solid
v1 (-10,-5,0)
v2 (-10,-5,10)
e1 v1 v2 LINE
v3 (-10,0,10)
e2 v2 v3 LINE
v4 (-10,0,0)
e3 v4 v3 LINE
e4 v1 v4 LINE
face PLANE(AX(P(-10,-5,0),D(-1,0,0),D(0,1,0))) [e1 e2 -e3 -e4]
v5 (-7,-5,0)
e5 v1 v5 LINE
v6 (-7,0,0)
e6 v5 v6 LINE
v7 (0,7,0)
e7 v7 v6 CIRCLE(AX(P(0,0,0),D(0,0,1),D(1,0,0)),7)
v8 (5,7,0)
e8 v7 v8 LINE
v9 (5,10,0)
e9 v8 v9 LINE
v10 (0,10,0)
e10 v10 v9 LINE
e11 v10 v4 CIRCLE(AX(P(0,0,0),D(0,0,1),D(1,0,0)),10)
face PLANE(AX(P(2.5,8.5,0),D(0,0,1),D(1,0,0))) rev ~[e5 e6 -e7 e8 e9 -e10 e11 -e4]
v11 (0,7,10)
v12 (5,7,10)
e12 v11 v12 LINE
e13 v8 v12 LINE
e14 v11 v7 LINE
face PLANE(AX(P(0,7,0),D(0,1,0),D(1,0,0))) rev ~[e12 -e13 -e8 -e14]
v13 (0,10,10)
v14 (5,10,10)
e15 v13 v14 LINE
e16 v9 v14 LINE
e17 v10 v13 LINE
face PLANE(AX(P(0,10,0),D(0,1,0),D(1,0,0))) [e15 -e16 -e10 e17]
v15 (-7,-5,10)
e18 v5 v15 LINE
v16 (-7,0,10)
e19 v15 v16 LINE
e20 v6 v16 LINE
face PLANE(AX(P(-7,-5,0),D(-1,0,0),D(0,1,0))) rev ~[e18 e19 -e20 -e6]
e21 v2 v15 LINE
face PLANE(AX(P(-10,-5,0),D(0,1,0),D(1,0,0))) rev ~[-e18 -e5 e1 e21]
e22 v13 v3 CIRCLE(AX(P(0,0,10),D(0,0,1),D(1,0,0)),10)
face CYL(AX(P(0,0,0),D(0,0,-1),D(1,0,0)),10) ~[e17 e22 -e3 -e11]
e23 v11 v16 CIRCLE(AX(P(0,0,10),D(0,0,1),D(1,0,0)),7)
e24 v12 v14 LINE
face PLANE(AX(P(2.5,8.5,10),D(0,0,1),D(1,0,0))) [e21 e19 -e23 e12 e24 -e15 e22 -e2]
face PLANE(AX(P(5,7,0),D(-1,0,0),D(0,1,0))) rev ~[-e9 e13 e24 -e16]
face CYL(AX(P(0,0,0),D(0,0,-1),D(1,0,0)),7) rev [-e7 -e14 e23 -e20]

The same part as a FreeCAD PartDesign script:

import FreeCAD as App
import Part
import Sketcher


def add_polygon(sketch, points):
    """Adds a closed chain of lines whose ends are joined by coincident constraints."""
    first, n = sketch.GeometryCount, len(points)
    for a, b in zip(points, points[1:] + points[:1]):
        sketch.addGeometry(Part.LineSegment(App.Vector(*a, 0), App.Vector(*b, 0)), False)
    for i in range(n):
        sketch.addConstraint(Sketcher.Constraint("Coincident", first + i, 2, first + (i + 1) % n, 1))

doc = App.newDocument("Part")
body = doc.addObject("PartDesign::Body", "Body")

# Sketch on XY plane
sketch1 = body.newObject("Sketcher::SketchObject", "Sketch")
sketch1.AttachmentSupport = (doc.getObject("XY_Plane"), [""])
sketch1.MapMode = "FlatFace"
add_polygon(sketch1, [(0, 10), (0, 0), (10, 0), (10, 10)])  # lines 0-3
sketch1.addConstraint(Sketcher.Constraint("Vertical", 0))
sketch1.addConstraint(Sketcher.Constraint("Horizontal", 1))
sketch1.addConstraint(Sketcher.Constraint("Vertical", 2))
sketch1.addConstraint(Sketcher.Constraint("Horizontal", 3))
sketch1.addConstraint(Sketcher.Constraint("Coincident", 0, 2, -1, 1))
sketch1.addConstraint(Sketcher.Constraint("Equal", 3, 0))
sketch1.addConstraint(Sketcher.Constraint("DistanceX", 1, 1, 1, 2, 10.0))
pad1 = body.newObject("PartDesign::Pad", "Pad")
pad1.Profile = sketch1
pad1.Length = 10
body2 = doc.addObject("PartDesign::Body", "Body001")

# Sketch on XY plane
sketch2 = body2.newObject("Sketcher::SketchObject", "Sketch001")
sketch2.AttachmentSupport = (doc.getObject("XY_Plane001"), [""])
sketch2.MapMode = "FlatFace"
add_polygon(sketch2, [(-10, 0), (-10, -10), (10, -10), (10, 0)])  # lines 0-3
sketch2.addConstraint(Sketcher.Constraint("Vertical", 0))
sketch2.addConstraint(Sketcher.Constraint("Horizontal", 1))
sketch2.addConstraint(Sketcher.Constraint("Vertical", 2))
sketch2.addConstraint(Sketcher.Constraint("Horizontal", 3))
sketch2.addConstraint(Sketcher.Constraint("Symmetric", 2, 2, 3, 2, -1, 1))
sketch2.addConstraint(Sketcher.Constraint("DistanceX", 1, 1, 1, 2, 20.0))
sketch2.addConstraint(Sketcher.Constraint("DistanceY", 0, 2, 0, 1, 10.0))
pad2 = body2.newObject("PartDesign::Pad", "Pad001")
pad2.Profile = sketch2
pad2.Length = 10
body3 = doc.addObject("PartDesign::Body", "Body002")

# Sketch on XY plane
sketch3 = body3.newObject("Sketcher::SketchObject", "Sketch002")
sketch3.AttachmentSupport = (doc.getObject("XY_Plane002"), [""])
sketch3.MapMode = "FlatFace"
sketch3.addGeometry(Part.Circle(App.Vector(0, 0, 0), App.Vector(0, 0, 1), 7), False)
sketch3.addConstraint(Sketcher.Constraint("Coincident", 0, 3, -1, 1))
sketch3.addConstraint(Sketcher.Constraint("Diameter", 0, 14.0))
pad3 = body3.newObject("PartDesign::Pad", "Pad002")
pad3.Profile = sketch3
pad3.Length = 10
body4 = doc.addObject("PartDesign::Body", "Body003")

# Sketch on XY plane
sketch4 = body4.newObject("Sketcher::SketchObject", "Sketch003")
sketch4.AttachmentSupport = (doc.getObject("XY_Plane003"), [""])
sketch4.MapMode = "FlatFace"
sketch4.addGeometry(Part.Circle(App.Vector(0, 0, 0), App.Vector(0, 0, 1), 10), False)
sketch4.addConstraint(Sketcher.Constraint("Coincident", 0, 3, -1, 1))
sketch4.addConstraint(Sketcher.Constraint("Diameter", 0, 20.0))
pad4 = body4.newObject("PartDesign::Pad", "Pad003")
pad4.Profile = sketch4
pad4.Length = 10
doc.recompute()

boolean = body4.newObject("PartDesign::Boolean", "Boolean")
boolean.Type = "Cut"
boolean.addObjects([body3])
doc.recompute()

boolean2 = body4.newObject("PartDesign::Boolean", "Boolean001")
boolean2.Type = "Cut"
boolean2.addObjects([body2])
doc.recompute()

boolean3 = body4.newObject("PartDesign::Boolean", "Boolean002")
boolean3.Type = "Cut"
boolean3.addObjects([body])
body5 = doc.addObject("PartDesign::Body", "Body004")

# Sketch on XY plane
sketch5 = body5.newObject("Sketcher::SketchObject", "Sketch004")
sketch5.AttachmentSupport = (doc.getObject("XY_Plane004"), [""])
sketch5.MapMode = "FlatFace"
add_polygon(sketch5, [(0, 10), (0, 7), (5, 7), (5, 10)])  # lines 0-3
sketch5.addConstraint(Sketcher.Constraint("Vertical", 0))
sketch5.addConstraint(Sketcher.Constraint("Horizontal", 1))
sketch5.addConstraint(Sketcher.Constraint("Vertical", 2))
sketch5.addConstraint(Sketcher.Constraint("Horizontal", 3))
sketch5.addConstraint(Sketcher.Constraint("PointOnObject", 0, 2, -2))
sketch5.addConstraint(Sketcher.Constraint("DistanceX", 1, 1, 1, 2, 5.0))
sketch5.addConstraint(Sketcher.Constraint("DistanceY", 0, 2, 0, 1, 3.0))
sketch5.addConstraint(Sketcher.Constraint("DistanceY", -1, 1, 0, 2, 7.0))
pad5 = body5.newObject("PartDesign::Pad", "Pad004")
pad5.Profile = sketch5
pad5.Length = 10
body6 = doc.addObject("PartDesign::Body", "Body005")

# Sketch on XY plane
sketch6 = body6.newObject("Sketcher::SketchObject", "Sketch005")
sketch6.AttachmentSupport = (doc.getObject("XY_Plane005"), [""])
sketch6.MapMode = "FlatFace"
add_polygon(sketch6, [(-10, 0), (-10, -5), (-7, -5), (-7, 0)])  # lines 0-3
sketch6.addConstraint(Sketcher.Constraint("Vertical", 0))
sketch6.addConstraint(Sketcher.Constraint("Horizontal", 1))
sketch6.addConstraint(Sketcher.Constraint("Vertical", 2))
sketch6.addConstraint(Sketcher.Constraint("Horizontal", 3))
sketch6.addConstraint(Sketcher.Constraint("PointOnObject", 2, 2, -1))
sketch6.addConstraint(Sketcher.Constraint("DistanceX", 1, 1, 1, 2, 3.0))
sketch6.addConstraint(Sketcher.Constraint("DistanceY", 0, 2, 0, 1, 5.0))
sketch6.addConstraint(Sketcher.Constraint("DistanceX", 0, 2, -1, 1, 10.0))
pad6 = body6.newObject("PartDesign::Pad", "Pad005")
pad6.Profile = sketch6
pad6.Length = 10
doc.recompute()

boolean4 = body6.newObject("PartDesign::Boolean", "Boolean003")
boolean4.Type = "Fuse"
boolean4.addObjects([body4])
doc.recompute()

boolean5 = body6.newObject("PartDesign::Boolean", "Boolean004")
boolean5.Type = "Fuse"
boolean5.addObjects([body5])

doc.recompute()
